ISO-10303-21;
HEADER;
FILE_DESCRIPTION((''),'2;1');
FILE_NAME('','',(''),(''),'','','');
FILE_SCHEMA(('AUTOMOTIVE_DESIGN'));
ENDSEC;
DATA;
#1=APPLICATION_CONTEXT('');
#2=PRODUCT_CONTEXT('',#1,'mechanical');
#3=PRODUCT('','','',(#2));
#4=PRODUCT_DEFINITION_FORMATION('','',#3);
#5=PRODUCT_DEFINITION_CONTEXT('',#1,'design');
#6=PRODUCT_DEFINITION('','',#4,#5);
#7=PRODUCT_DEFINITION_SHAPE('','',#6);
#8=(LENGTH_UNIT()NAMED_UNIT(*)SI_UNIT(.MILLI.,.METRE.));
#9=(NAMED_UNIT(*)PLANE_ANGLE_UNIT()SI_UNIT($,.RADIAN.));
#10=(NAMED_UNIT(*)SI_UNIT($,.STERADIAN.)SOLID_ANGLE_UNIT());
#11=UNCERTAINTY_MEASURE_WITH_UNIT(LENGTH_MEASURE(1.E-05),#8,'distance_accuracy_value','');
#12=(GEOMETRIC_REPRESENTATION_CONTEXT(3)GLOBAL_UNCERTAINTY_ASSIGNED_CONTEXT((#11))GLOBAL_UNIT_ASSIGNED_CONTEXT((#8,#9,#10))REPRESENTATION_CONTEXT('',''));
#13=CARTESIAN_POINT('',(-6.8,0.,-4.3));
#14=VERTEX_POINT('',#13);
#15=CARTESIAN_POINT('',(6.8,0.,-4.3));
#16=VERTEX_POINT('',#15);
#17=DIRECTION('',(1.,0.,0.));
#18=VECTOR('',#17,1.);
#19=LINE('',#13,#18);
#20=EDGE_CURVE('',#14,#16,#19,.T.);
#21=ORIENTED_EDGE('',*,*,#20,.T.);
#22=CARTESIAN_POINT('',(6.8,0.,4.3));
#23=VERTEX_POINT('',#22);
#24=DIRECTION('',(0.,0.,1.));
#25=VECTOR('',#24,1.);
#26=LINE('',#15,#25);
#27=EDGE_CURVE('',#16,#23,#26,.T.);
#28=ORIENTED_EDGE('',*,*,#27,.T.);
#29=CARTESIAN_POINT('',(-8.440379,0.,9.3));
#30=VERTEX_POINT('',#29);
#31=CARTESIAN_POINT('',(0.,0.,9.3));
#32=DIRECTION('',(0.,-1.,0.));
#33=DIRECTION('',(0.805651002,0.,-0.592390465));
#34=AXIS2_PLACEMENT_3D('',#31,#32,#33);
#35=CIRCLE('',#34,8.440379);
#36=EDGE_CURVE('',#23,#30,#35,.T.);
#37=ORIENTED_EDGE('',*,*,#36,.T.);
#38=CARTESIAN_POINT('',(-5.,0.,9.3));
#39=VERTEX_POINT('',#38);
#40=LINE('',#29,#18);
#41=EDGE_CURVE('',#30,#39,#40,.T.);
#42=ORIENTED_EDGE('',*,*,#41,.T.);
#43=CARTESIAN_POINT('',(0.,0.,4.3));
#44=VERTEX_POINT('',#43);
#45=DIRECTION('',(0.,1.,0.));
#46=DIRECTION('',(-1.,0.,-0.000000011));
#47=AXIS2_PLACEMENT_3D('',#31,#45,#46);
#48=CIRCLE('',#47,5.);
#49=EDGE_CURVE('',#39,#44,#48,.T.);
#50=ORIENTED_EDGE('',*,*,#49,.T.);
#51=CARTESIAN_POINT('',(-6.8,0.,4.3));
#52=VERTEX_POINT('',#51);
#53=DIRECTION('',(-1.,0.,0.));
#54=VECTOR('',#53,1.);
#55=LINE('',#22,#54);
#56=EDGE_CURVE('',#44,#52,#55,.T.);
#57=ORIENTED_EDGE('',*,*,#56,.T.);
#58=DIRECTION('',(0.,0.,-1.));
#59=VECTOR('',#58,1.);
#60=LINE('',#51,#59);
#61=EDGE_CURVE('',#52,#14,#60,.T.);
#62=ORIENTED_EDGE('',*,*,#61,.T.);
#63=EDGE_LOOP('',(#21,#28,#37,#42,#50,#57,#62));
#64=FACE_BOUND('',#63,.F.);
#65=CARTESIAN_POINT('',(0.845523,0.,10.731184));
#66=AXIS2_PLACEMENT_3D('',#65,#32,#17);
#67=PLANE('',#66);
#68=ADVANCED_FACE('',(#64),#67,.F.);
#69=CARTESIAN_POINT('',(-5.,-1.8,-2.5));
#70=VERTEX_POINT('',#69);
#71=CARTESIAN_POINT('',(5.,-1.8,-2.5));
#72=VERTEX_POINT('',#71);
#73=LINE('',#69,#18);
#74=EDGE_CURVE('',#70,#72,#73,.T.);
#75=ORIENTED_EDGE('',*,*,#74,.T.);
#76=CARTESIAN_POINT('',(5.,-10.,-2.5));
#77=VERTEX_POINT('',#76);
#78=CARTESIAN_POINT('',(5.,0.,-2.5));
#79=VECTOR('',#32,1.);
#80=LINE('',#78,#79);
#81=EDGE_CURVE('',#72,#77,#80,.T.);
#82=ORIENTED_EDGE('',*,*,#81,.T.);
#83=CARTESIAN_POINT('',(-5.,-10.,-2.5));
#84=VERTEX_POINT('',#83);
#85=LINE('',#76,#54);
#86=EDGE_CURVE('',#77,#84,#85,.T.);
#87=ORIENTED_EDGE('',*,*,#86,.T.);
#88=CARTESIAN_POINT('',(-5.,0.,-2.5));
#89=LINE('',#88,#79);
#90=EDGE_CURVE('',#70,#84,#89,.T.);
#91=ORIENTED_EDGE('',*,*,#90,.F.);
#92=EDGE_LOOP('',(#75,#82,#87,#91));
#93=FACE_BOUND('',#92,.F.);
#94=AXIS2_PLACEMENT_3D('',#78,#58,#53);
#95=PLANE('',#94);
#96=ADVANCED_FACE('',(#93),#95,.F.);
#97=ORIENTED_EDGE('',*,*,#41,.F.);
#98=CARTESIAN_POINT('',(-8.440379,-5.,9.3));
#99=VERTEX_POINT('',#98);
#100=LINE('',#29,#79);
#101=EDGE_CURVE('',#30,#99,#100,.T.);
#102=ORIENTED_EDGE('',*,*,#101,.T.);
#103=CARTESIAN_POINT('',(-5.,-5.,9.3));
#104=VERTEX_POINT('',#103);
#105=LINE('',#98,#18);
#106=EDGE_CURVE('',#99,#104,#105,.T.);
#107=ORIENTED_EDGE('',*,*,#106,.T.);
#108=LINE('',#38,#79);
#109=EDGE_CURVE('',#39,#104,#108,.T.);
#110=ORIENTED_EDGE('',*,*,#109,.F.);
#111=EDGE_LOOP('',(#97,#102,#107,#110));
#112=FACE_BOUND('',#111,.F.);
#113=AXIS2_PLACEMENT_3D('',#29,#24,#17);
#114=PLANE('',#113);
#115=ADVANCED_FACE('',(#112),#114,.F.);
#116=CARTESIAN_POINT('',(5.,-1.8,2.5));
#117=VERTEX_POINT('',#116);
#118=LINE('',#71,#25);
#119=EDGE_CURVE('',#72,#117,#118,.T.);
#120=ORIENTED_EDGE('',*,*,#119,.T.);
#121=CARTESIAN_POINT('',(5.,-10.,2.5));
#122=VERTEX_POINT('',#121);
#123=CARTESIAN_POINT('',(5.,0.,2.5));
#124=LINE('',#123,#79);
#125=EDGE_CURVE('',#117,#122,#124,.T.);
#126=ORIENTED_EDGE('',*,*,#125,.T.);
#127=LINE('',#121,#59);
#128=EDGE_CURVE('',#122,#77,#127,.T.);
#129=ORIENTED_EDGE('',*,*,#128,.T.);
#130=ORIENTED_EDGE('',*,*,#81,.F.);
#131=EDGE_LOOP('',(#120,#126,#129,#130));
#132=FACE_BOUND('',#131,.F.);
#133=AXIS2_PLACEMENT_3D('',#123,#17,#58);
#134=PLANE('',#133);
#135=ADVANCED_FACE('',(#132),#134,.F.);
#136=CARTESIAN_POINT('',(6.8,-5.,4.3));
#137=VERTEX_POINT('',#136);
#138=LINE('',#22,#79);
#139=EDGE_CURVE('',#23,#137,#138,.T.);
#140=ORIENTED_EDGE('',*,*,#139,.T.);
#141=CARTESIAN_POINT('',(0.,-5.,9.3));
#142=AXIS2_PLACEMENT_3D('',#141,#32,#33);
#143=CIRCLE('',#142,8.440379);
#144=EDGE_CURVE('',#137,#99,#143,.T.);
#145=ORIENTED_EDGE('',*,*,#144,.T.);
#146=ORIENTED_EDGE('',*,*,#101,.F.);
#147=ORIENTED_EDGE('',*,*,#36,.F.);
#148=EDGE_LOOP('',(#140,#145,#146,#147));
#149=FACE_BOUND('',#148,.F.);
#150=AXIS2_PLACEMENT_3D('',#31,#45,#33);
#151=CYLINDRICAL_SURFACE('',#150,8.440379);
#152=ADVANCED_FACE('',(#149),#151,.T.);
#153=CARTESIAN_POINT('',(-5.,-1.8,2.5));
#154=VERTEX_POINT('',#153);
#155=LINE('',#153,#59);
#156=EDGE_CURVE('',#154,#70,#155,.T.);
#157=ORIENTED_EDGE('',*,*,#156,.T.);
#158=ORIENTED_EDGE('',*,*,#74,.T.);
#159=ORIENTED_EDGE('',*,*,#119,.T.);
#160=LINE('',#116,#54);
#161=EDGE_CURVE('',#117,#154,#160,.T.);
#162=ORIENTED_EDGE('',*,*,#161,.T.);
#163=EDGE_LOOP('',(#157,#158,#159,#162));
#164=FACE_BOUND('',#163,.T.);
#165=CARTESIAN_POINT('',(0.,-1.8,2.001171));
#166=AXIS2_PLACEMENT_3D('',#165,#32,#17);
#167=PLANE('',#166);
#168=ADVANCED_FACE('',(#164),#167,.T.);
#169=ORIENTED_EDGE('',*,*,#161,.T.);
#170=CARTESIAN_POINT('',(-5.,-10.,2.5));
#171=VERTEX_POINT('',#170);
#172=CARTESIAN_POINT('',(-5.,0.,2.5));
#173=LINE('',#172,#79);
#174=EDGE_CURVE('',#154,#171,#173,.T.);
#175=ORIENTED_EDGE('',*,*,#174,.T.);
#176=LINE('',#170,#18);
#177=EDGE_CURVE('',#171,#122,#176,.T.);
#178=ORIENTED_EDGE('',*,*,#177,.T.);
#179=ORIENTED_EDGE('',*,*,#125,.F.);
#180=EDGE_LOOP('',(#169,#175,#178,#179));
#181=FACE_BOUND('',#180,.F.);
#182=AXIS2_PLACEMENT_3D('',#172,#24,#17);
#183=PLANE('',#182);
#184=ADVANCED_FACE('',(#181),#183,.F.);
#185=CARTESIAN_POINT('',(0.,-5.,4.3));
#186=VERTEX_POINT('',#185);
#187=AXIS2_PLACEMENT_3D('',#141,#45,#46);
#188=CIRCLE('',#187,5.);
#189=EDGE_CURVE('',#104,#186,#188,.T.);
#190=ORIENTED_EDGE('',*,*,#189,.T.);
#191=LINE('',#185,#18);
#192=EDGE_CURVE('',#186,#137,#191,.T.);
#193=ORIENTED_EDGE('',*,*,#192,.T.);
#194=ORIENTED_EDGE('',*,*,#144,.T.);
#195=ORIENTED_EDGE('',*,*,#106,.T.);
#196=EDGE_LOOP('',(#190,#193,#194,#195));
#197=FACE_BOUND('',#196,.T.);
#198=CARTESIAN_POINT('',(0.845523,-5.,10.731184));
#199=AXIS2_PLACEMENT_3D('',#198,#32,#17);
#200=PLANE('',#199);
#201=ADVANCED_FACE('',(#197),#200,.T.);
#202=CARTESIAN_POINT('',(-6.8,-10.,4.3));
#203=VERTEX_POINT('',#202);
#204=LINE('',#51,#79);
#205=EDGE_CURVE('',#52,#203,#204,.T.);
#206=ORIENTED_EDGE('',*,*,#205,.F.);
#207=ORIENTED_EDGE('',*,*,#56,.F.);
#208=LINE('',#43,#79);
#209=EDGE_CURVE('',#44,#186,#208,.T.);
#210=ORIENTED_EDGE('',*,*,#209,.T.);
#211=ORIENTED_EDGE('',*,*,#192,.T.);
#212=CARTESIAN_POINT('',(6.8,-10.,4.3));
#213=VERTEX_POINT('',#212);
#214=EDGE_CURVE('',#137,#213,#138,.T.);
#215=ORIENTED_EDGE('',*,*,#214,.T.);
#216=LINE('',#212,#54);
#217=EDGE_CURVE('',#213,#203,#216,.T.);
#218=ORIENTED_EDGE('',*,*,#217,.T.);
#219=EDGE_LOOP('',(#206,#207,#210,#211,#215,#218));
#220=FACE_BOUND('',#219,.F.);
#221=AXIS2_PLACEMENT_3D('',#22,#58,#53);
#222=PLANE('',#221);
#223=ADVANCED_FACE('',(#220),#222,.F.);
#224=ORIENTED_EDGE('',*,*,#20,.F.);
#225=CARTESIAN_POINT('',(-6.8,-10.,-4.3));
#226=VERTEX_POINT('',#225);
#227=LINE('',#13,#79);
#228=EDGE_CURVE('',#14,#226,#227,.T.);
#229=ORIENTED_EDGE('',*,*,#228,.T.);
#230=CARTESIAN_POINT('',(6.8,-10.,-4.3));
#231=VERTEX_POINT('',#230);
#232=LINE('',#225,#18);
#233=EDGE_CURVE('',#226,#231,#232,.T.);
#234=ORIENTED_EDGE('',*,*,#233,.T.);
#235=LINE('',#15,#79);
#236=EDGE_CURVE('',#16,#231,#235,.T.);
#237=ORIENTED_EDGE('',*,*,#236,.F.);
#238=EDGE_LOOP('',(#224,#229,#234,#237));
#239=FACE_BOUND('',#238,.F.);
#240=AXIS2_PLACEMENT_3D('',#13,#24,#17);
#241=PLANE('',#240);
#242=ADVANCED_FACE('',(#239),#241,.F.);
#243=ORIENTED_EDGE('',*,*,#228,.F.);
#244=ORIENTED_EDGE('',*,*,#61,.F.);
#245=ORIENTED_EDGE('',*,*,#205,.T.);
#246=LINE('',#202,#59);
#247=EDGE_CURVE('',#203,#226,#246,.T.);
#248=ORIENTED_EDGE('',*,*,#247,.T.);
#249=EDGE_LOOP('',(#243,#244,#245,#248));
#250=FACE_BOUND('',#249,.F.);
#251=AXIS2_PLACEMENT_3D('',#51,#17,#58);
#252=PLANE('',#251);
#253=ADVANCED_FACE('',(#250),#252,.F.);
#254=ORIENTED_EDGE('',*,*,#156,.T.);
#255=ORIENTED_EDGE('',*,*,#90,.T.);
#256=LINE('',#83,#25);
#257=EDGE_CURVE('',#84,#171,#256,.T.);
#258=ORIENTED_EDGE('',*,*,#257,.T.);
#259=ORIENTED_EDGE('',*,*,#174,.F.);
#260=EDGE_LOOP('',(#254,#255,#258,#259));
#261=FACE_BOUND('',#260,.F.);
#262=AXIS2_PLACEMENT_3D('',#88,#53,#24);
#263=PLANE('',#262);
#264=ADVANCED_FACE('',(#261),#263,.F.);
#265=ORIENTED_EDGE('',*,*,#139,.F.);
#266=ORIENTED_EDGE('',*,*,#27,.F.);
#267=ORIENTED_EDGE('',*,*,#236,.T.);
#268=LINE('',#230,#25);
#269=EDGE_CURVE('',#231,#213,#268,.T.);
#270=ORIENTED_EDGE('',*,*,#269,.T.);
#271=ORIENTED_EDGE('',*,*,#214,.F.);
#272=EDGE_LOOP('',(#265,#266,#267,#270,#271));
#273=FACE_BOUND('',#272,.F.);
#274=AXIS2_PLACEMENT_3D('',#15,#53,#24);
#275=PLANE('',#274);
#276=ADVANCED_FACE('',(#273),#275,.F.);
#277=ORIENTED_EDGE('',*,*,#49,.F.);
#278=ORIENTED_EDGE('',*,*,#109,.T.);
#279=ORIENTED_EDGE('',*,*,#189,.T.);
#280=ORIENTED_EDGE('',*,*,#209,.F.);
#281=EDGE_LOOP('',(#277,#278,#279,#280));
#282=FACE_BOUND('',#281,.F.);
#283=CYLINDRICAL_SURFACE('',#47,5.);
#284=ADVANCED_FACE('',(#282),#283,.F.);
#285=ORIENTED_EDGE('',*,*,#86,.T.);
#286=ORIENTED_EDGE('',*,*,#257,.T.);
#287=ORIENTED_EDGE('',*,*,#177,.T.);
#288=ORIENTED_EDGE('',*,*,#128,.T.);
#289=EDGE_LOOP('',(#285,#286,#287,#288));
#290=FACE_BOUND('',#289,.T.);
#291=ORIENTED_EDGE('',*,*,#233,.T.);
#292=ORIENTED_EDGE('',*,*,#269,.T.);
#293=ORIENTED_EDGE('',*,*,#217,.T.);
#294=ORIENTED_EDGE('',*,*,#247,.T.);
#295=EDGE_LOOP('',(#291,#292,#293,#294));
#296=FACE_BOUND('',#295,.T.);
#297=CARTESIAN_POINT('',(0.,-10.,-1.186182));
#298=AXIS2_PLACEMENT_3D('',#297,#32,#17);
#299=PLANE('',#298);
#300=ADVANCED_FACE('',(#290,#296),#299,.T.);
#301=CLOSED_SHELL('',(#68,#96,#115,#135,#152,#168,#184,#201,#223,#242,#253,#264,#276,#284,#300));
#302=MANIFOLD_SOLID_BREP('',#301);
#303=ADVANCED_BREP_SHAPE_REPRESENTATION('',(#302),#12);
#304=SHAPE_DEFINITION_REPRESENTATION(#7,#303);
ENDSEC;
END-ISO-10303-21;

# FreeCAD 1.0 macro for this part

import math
import FreeCAD as App
import Part
import Sketcher

doc = App.newDocument("Part")
body = doc.addObject("PartDesign::Body", "Body")

sketch1 = body.newObject("Sketcher::SketchObject", "Sketch")
sketch1.AttachmentSupport = (doc.getObject("XZ_Plane"), [""])
sketch1.MapMode = "FlatFace"
sketch1.addGeometry([
    Part.LineSegment(App.Vector(-7, 4, 0), App.Vector(-7, -4, 0)),
    Part.LineSegment(App.Vector(-7, -4, 0), App.Vector(7, -4, 0)),
    Part.LineSegment(App.Vector(7, -4, 0), App.Vector(7, 4, 0)),
    Part.LineSegment(App.Vector(7, 4, 0), App.Vector(-7, 4, 0)),
    Part.LineSegment(App.Vector(-5, -2, 0), App.Vector(-5, 2, 0)),
    Part.LineSegment(App.Vector(-5, 2, 0), App.Vector(5, 2, 0)),
    Part.LineSegment(App.Vector(5, 2, 0), App.Vector(5, -2, 0)),
    Part.LineSegment(App.Vector(5, -2, 0), App.Vector(-5, -2, 0)),
], False)
sketch1.addConstraint([
    Sketcher.Constraint("Coincident", 0, 2, 1, 1),
    Sketcher.Constraint("Coincident", 1, 2, 2, 1),
    Sketcher.Constraint("Coincident", 2, 2, 3, 1),
    Sketcher.Constraint("Coincident", 3, 2, 0, 1),
    Sketcher.Constraint("Coincident", 4, 2, 5, 1),
    Sketcher.Constraint("Coincident", 5, 2, 6, 1),
    Sketcher.Constraint("Coincident", 6, 2, 7, 1),
    Sketcher.Constraint("Coincident", 7, 2, 4, 1),
    Sketcher.Constraint("Vertical", 0),
    Sketcher.Constraint("Horizontal", 1),
    Sketcher.Constraint("Vertical", 2),
    Sketcher.Constraint("Horizontal", 3),
    Sketcher.Constraint("Vertical", 4),
    Sketcher.Constraint("Horizontal", 5),
    Sketcher.Constraint("Vertical", 6),
    Sketcher.Constraint("Horizontal", 7),
    Sketcher.Constraint("Symmetric", 0, 2, 2, 2, -1, 1),
    Sketcher.Constraint("Symmetric", 4, 2, 6, 2, -1, 1),
    Sketcher.Constraint("DistanceX", 5, 1, 5, 2, 10.0),
    Sketcher.Constraint("DistanceY", 4, 1, 4, 2, 5.0),
    Sketcher.Constraint("DistanceX", 1, 1, 1, 2, 13.6),
    Sketcher.Constraint("DistanceY", 0, 2, 0, 1, 8.6),
])
pad1 = body.newObject("PartDesign::Pad", "Pad")
pad1.Profile = sketch1
pad1.Length = 10

sketch2 = body.newObject("Sketcher::SketchObject", "Sketch001")
sketch2.AttachmentSupport = (doc.getObject("XZ_Plane"), [""])
sketch2.MapMode = "FlatFace"
sketch2.addGeometry([
    Part.LineSegment(App.Vector(5, 2, 0), App.Vector(-5, 2, 0)),
    Part.LineSegment(App.Vector(-5, 2, 0), App.Vector(-5, -2, 0)),
    Part.LineSegment(App.Vector(-5, -2, 0), App.Vector(5, -2, 0)),
    Part.LineSegment(App.Vector(5, -2, 0), App.Vector(5, 2, 0)),
], False)
sketch2.addConstraint([
    Sketcher.Constraint("Coincident", 0, 2, 1, 1),
    Sketcher.Constraint("Coincident", 1, 2, 2, 1),
    Sketcher.Constraint("Coincident", 2, 2, 3, 1),
    Sketcher.Constraint("Coincident", 3, 2, 0, 1),
    Sketcher.Constraint("Horizontal", 0),
    Sketcher.Constraint("Vertical", 1),
    Sketcher.Constraint("Horizontal", 2),
    Sketcher.Constraint("Vertical", 3),
    Sketcher.Constraint("Symmetric", 0, 2, 2, 2, -1, 1),
    Sketcher.Constraint("DistanceX", 0, 2, 0, 1, 10.0),
    Sketcher.Constraint("DistanceY", 1, 2, 1, 1, 5.0),
])
pad2 = body.newObject("PartDesign::Pad", "Pad001")
pad2.Profile = sketch2
pad2.Length = 1.8

sketch3 = body.newObject("Sketcher::SketchObject", "Sketch002")
sketch3.AttachmentSupport = (doc.getObject("XZ_Plane"), [""])
sketch3.MapMode = "FlatFace"
sketch3.addGeometry([
    Part.LineSegment(App.Vector(0, 4.3, 0), App.Vector(6.8, 4.3, 0)),
    Part.ArcOfCircle(Part.Circle(App.Vector(0, 9.3, 0), App.Vector(0, 0, 1), 8.4), math.radians(-36), math.radians(180)),
    Part.LineSegment(App.Vector(-8.4, 9.3, 0), App.Vector(-5, 9.3, 0)),
    Part.ArcOfCircle(Part.Circle(App.Vector(0, 9.3, 0), App.Vector(0, 0, 1), 5), math.radians(-90), math.radians(180)),
], False)
sketch3.addConstraint([
    Sketcher.Constraint("Coincident", 0, 2, 1, 1),
    Sketcher.Constraint("Coincident", 1, 2, 2, 1),
    Sketcher.Constraint("Coincident", 2, 2, 3, 2),
    Sketcher.Constraint("Tangent", 3, 1, 0, 1),
    Sketcher.Constraint("Horizontal", 0),
    Sketcher.Constraint("Horizontal", 2),
    Sketcher.Constraint("Coincident", 3, 3, 1, 3),
    Sketcher.Constraint("PointOnObject", 1, 3, -2),
    Sketcher.Constraint("Horizontal", 3, 3, 1, 2),
    Sketcher.Constraint("Radius", 3, 5.0),
    Sketcher.Constraint("DistanceX", 0, 1, 0, 2, 6.8),
    Sketcher.Constraint("DistanceY", -1, 1, 1, 3, 9.3),
])
pad3 = body.newObject("PartDesign::Pad", "Pad002")
pad3.Profile = sketch3
pad3.Length = 5

doc.recompute()
